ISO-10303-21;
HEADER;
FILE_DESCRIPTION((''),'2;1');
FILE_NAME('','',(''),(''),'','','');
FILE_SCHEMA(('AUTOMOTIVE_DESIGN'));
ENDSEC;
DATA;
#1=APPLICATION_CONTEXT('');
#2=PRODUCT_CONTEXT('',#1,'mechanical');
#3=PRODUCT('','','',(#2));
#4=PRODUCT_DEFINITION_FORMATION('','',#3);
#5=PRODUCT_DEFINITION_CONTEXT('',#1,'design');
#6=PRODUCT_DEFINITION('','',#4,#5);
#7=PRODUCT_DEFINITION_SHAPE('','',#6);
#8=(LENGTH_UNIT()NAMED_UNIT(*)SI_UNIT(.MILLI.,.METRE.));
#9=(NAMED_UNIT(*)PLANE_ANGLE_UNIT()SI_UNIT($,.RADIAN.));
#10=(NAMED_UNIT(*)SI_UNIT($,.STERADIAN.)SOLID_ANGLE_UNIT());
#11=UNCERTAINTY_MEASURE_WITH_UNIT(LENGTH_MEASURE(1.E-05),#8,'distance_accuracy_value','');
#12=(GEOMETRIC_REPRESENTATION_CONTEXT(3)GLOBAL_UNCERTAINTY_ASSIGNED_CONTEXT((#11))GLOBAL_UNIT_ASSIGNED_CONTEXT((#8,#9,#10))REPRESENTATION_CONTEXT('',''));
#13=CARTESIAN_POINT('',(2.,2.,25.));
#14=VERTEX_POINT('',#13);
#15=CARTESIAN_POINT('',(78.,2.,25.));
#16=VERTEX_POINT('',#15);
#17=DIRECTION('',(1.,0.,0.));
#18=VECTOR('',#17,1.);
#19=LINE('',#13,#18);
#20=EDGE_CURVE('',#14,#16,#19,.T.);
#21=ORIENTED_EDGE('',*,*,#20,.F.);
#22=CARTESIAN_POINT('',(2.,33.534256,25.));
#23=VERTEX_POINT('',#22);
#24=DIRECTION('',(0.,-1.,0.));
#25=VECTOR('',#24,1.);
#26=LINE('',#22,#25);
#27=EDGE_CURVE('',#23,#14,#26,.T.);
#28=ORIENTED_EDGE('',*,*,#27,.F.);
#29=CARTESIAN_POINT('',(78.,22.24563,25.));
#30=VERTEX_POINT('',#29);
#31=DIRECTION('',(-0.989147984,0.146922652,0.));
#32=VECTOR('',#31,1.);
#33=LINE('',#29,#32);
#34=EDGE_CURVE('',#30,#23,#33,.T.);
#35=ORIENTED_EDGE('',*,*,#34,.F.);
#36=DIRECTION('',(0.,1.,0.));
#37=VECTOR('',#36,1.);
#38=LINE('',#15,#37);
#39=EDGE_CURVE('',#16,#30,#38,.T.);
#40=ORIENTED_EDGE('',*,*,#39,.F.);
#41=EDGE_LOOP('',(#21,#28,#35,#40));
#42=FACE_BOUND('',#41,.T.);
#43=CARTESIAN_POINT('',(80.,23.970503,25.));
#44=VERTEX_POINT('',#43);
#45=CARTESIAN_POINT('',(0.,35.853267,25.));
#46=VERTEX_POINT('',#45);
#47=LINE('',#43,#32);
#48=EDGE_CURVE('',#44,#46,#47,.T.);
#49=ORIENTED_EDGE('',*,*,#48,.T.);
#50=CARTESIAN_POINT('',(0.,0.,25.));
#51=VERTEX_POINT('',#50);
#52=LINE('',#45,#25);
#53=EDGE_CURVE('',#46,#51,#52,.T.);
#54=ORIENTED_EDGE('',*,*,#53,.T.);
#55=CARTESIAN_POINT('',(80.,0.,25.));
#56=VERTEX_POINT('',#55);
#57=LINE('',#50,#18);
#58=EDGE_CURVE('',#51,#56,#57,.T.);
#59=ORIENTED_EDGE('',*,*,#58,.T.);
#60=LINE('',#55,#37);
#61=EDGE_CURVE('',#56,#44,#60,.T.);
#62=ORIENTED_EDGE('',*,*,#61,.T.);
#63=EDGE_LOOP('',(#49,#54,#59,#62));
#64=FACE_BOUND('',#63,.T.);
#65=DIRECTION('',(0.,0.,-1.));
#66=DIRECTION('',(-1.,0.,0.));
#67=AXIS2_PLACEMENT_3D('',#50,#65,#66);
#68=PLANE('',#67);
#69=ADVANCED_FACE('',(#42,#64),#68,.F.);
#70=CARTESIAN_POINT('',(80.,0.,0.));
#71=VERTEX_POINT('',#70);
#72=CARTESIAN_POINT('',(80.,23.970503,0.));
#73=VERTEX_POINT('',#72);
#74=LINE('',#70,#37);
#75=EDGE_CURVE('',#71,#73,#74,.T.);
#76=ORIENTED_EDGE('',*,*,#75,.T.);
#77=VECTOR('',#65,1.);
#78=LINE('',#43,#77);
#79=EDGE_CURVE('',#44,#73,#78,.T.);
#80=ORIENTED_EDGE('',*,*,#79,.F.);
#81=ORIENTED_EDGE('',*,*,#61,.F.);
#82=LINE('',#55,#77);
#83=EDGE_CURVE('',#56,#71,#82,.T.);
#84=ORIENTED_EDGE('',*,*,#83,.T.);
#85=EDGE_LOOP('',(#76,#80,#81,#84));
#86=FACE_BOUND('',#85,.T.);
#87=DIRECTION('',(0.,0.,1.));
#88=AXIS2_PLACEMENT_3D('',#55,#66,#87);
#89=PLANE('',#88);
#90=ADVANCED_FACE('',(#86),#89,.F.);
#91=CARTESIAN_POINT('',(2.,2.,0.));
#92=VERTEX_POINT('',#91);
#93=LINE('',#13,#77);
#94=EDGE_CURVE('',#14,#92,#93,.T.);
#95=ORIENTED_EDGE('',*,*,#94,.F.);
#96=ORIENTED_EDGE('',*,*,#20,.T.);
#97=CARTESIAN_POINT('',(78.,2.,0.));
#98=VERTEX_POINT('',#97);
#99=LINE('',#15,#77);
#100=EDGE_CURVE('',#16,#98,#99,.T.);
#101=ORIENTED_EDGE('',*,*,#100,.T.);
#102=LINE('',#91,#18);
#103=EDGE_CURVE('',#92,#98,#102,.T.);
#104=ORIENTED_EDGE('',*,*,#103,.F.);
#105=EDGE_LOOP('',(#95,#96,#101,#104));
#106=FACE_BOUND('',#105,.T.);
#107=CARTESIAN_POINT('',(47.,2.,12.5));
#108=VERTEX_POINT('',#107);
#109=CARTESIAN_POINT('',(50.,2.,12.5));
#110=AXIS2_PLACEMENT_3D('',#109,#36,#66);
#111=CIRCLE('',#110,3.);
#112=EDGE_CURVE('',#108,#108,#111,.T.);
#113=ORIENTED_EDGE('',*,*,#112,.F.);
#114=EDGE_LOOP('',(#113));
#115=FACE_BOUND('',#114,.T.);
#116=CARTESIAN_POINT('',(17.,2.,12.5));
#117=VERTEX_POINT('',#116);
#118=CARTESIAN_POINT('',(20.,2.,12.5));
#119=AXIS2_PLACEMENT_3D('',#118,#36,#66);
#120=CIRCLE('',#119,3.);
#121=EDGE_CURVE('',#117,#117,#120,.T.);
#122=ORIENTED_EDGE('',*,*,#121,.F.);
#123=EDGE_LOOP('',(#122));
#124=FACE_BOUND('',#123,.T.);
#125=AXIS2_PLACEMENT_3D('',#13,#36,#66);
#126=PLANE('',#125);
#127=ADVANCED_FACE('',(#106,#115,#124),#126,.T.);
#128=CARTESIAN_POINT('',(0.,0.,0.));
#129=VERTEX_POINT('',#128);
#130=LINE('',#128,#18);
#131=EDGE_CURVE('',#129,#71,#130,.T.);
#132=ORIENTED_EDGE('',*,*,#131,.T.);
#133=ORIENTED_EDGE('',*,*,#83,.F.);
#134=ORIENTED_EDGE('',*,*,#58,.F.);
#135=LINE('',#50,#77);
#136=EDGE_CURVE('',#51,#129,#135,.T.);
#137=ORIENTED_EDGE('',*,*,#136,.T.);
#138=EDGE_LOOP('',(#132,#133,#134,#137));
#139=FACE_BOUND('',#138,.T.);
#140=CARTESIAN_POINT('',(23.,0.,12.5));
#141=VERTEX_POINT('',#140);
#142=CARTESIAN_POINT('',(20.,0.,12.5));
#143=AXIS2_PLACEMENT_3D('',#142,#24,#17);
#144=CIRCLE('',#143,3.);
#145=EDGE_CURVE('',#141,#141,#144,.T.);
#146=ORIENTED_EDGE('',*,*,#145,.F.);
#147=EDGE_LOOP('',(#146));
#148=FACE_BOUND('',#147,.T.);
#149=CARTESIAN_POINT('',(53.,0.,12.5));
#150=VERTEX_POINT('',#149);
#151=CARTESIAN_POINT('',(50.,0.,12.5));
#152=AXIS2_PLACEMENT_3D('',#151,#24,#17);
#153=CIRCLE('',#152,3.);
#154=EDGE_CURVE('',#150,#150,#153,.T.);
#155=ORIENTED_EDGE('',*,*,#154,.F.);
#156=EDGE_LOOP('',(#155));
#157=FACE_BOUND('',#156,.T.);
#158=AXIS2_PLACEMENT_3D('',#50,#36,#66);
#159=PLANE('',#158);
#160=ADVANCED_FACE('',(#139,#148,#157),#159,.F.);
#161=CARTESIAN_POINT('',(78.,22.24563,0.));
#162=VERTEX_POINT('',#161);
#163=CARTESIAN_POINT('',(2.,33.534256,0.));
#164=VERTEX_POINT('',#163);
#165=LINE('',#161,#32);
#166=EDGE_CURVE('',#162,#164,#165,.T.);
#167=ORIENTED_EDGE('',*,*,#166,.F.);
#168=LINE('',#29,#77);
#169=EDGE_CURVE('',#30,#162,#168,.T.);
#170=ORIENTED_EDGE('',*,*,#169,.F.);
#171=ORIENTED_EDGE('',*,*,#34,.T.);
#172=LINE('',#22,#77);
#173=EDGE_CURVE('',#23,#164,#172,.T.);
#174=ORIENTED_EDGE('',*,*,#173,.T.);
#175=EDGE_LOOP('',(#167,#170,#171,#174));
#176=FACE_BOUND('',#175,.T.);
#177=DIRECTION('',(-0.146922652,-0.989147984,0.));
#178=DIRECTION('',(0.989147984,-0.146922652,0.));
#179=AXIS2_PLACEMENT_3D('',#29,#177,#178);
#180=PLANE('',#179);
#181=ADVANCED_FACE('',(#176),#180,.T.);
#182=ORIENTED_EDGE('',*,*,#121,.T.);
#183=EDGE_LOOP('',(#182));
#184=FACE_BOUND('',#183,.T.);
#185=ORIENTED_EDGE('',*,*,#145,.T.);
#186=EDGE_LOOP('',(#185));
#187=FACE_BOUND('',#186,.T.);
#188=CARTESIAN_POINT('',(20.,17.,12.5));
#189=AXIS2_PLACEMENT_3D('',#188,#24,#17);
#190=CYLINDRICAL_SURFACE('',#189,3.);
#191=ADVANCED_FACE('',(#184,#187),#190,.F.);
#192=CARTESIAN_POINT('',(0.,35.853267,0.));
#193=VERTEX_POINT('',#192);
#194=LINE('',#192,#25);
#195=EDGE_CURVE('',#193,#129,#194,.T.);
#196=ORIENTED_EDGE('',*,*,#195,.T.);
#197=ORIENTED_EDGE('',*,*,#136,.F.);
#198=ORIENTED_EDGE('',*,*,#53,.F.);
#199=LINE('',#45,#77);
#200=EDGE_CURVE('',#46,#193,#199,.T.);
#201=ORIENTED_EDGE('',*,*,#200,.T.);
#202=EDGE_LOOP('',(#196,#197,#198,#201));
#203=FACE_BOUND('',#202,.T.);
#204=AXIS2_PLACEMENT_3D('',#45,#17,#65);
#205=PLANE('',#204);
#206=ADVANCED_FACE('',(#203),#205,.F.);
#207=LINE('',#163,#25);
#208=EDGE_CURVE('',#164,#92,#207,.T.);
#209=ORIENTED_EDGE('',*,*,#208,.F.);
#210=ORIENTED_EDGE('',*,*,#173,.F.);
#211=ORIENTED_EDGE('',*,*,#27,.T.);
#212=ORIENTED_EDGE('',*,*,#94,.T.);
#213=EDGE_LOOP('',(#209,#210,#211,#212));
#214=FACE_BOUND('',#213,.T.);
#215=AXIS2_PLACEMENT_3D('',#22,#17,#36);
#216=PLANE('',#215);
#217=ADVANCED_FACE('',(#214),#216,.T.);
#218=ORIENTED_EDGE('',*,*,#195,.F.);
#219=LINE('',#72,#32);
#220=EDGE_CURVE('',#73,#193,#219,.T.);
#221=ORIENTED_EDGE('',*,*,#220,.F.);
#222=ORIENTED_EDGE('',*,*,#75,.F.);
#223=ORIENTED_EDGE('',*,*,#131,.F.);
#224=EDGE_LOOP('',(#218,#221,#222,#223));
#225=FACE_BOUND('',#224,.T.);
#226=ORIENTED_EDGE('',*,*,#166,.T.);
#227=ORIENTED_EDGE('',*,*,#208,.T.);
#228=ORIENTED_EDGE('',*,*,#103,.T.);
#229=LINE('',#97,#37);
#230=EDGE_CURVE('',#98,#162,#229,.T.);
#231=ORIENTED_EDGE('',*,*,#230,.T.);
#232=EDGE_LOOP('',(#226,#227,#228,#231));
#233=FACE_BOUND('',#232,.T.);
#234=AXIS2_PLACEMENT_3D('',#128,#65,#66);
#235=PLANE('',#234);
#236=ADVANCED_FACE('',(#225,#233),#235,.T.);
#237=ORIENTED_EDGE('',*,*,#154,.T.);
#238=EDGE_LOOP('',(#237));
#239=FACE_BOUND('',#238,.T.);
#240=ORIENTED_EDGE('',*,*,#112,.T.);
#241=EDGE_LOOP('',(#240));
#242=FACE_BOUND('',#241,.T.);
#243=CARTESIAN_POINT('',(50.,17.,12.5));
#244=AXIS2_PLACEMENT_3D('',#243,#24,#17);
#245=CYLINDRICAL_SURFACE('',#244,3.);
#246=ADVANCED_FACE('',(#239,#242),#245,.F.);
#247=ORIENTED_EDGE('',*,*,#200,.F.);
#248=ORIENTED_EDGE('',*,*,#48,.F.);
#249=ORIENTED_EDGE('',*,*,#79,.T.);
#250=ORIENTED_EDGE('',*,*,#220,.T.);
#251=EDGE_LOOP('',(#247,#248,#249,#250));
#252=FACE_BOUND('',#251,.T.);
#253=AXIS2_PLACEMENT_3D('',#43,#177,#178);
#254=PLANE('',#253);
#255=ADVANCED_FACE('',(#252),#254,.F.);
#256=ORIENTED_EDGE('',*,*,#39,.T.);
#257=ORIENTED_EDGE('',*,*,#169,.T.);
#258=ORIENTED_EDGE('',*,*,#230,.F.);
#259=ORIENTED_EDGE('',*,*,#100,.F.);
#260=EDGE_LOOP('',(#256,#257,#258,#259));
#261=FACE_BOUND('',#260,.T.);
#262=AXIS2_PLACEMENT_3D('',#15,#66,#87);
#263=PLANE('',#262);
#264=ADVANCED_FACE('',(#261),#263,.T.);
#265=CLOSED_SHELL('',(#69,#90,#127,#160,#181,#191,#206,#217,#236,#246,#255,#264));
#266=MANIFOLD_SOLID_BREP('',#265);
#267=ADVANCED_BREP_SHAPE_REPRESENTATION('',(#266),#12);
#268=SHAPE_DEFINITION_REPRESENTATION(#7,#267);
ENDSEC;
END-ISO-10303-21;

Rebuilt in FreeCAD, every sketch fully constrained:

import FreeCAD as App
import Part
import Sketcher
Q = App.Units.Quantity

doc = App.newDocument("Part")
body = doc.addObject("PartDesign::Body", "Body")

# Sketch on XY plane
sketch1 = doc.addObject("Sketcher::SketchObject", "Sketch")
body.addObject(sketch1)
sketch1.AttachmentSupport = (doc.XY_Plane, [""])
sketch1.MapMode = "FlatFace"
sketch1.addGeometry(Part.LineSegment(App.Vector(0, 35.853267, 0), App.Vector(0, 0, 0)), False)
sketch1.addGeometry(Part.LineSegment(App.Vector(0, 0, 0), App.Vector(80, 0, 0)), False)
sketch1.addGeometry(Part.LineSegment(App.Vector(80, 0, 0), App.Vector(80, 23.970503, 0)), False)
sketch1.addGeometry(Part.LineSegment(App.Vector(80, 23.970503, 0), App.Vector(0, 35.853267, 0)), False)
sketch1.addGeometry(Part.LineSegment(App.Vector(2, 2, 0), App.Vector(2, 33.534256, 0)), False)
sketch1.addGeometry(Part.LineSegment(App.Vector(2, 33.534256, 0), App.Vector(78, 22.24563, 0)), False)
sketch1.addGeometry(Part.LineSegment(App.Vector(78, 22.24563, 0), App.Vector(78, 2, 0)), False)
sketch1.addGeometry(Part.LineSegment(App.Vector(78, 2, 0), App.Vector(2, 2, 0)), False)
sketch1.addConstraint(Sketcher.Constraint("Coincident", 0, 2, 1, 1))
sketch1.addConstraint(Sketcher.Constraint("Coincident", 1, 2, 2, 1))
sketch1.addConstraint(Sketcher.Constraint("Coincident", 2, 2, 3, 1))
sketch1.addConstraint(Sketcher.Constraint("Coincident", 3, 2, 0, 1))
sketch1.addConstraint(Sketcher.Constraint("Coincident", 4, 2, 5, 1))
sketch1.addConstraint(Sketcher.Constraint("Coincident", 5, 2, 6, 1))
sketch1.addConstraint(Sketcher.Constraint("Coincident", 6, 2, 7, 1))
sketch1.addConstraint(Sketcher.Constraint("Coincident", 7, 2, 4, 1))
sketch1.addConstraint(Sketcher.Constraint("Vertical", 0))
sketch1.addConstraint(Sketcher.Constraint("Horizontal", 1))
sketch1.addConstraint(Sketcher.Constraint("Vertical", 2))
sketch1.addConstraint(Sketcher.Constraint("Vertical", 4))
sketch1.addConstraint(Sketcher.Constraint("Vertical", 6))
sketch1.addConstraint(Sketcher.Constraint("Horizontal", 7))
sketch1.addConstraint(Sketcher.Constraint("Coincident", 0, 2, -1, 1))
sketch1.addConstraint(Sketcher.Constraint("Parallel", 3, 5))
sketch1.addConstraint(Sketcher.Constraint("DistanceX", 1, 1, 1, 2, Q("80 mm")))
sketch1.addConstraint(Sketcher.Constraint("DistanceX", 7, 2, 7, 1, Q("76 mm")))
sketch1.addConstraint(Sketcher.Constraint("DistanceX", -1, 1, 4, 2, Q("2 mm")))
sketch1.addConstraint(Sketcher.Constraint("DistanceY", -1, 1, 6, 2, Q("2 mm")))
sketch1.addConstraint(Sketcher.Constraint("Distance", 5, Q("76.833802 mm")))
sketch1.addConstraint(Sketcher.Constraint("DistanceY", 6, 2, 6, 1, Q("20.24563 mm")))
sketch1.addConstraint(Sketcher.Constraint("DistanceY", 0, 2, 0, 1, Q("35.853267 mm")))
pad1 = doc.addObject("PartDesign::Pad", "Pad")
body.addObject(pad1)
pad1.Profile = sketch1
pad1.Length = 25

# Sketch on XZ plane
sketch2 = doc.addObject("Sketcher::SketchObject", "Sketch001")
body.addObject(sketch2)
sketch2.AttachmentSupport = (doc.XZ_Plane, [""])
sketch2.MapMode = "FlatFace"
sketch2.addGeometry(Part.Circle(App.Vector(20, 12.5, 0), App.Vector(0, 0, 1), 3), False)
sketch2.addGeometry(Part.Circle(App.Vector(50, 12.5, 0), App.Vector(0, 0, 1), 3), False)
sketch2.addConstraint(Sketcher.Constraint("Equal", 0, 1))
sketch2.addConstraint(Sketcher.Constraint("Horizontal", 0, 3, 1, 3))
sketch2.addConstraint(Sketcher.Constraint("Diameter", 0, Q("6 mm")))
sketch2.addConstraint(Sketcher.Constraint("DistanceX", -1, 1, 0, 3, Q("20 mm")))
sketch2.addConstraint(Sketcher.Constraint("DistanceX", -1, 1, 1, 3, Q("50 mm")))
sketch2.addConstraint(Sketcher.Constraint("DistanceY", -1, 1, 0, 3, Q("12.5 mm")))
pocket1 = doc.addObject("PartDesign::Pocket", "Pocket")
body.addObject(pocket1)
pocket1.Profile = sketch2
pocket1.Length = 17

doc.recompute()
